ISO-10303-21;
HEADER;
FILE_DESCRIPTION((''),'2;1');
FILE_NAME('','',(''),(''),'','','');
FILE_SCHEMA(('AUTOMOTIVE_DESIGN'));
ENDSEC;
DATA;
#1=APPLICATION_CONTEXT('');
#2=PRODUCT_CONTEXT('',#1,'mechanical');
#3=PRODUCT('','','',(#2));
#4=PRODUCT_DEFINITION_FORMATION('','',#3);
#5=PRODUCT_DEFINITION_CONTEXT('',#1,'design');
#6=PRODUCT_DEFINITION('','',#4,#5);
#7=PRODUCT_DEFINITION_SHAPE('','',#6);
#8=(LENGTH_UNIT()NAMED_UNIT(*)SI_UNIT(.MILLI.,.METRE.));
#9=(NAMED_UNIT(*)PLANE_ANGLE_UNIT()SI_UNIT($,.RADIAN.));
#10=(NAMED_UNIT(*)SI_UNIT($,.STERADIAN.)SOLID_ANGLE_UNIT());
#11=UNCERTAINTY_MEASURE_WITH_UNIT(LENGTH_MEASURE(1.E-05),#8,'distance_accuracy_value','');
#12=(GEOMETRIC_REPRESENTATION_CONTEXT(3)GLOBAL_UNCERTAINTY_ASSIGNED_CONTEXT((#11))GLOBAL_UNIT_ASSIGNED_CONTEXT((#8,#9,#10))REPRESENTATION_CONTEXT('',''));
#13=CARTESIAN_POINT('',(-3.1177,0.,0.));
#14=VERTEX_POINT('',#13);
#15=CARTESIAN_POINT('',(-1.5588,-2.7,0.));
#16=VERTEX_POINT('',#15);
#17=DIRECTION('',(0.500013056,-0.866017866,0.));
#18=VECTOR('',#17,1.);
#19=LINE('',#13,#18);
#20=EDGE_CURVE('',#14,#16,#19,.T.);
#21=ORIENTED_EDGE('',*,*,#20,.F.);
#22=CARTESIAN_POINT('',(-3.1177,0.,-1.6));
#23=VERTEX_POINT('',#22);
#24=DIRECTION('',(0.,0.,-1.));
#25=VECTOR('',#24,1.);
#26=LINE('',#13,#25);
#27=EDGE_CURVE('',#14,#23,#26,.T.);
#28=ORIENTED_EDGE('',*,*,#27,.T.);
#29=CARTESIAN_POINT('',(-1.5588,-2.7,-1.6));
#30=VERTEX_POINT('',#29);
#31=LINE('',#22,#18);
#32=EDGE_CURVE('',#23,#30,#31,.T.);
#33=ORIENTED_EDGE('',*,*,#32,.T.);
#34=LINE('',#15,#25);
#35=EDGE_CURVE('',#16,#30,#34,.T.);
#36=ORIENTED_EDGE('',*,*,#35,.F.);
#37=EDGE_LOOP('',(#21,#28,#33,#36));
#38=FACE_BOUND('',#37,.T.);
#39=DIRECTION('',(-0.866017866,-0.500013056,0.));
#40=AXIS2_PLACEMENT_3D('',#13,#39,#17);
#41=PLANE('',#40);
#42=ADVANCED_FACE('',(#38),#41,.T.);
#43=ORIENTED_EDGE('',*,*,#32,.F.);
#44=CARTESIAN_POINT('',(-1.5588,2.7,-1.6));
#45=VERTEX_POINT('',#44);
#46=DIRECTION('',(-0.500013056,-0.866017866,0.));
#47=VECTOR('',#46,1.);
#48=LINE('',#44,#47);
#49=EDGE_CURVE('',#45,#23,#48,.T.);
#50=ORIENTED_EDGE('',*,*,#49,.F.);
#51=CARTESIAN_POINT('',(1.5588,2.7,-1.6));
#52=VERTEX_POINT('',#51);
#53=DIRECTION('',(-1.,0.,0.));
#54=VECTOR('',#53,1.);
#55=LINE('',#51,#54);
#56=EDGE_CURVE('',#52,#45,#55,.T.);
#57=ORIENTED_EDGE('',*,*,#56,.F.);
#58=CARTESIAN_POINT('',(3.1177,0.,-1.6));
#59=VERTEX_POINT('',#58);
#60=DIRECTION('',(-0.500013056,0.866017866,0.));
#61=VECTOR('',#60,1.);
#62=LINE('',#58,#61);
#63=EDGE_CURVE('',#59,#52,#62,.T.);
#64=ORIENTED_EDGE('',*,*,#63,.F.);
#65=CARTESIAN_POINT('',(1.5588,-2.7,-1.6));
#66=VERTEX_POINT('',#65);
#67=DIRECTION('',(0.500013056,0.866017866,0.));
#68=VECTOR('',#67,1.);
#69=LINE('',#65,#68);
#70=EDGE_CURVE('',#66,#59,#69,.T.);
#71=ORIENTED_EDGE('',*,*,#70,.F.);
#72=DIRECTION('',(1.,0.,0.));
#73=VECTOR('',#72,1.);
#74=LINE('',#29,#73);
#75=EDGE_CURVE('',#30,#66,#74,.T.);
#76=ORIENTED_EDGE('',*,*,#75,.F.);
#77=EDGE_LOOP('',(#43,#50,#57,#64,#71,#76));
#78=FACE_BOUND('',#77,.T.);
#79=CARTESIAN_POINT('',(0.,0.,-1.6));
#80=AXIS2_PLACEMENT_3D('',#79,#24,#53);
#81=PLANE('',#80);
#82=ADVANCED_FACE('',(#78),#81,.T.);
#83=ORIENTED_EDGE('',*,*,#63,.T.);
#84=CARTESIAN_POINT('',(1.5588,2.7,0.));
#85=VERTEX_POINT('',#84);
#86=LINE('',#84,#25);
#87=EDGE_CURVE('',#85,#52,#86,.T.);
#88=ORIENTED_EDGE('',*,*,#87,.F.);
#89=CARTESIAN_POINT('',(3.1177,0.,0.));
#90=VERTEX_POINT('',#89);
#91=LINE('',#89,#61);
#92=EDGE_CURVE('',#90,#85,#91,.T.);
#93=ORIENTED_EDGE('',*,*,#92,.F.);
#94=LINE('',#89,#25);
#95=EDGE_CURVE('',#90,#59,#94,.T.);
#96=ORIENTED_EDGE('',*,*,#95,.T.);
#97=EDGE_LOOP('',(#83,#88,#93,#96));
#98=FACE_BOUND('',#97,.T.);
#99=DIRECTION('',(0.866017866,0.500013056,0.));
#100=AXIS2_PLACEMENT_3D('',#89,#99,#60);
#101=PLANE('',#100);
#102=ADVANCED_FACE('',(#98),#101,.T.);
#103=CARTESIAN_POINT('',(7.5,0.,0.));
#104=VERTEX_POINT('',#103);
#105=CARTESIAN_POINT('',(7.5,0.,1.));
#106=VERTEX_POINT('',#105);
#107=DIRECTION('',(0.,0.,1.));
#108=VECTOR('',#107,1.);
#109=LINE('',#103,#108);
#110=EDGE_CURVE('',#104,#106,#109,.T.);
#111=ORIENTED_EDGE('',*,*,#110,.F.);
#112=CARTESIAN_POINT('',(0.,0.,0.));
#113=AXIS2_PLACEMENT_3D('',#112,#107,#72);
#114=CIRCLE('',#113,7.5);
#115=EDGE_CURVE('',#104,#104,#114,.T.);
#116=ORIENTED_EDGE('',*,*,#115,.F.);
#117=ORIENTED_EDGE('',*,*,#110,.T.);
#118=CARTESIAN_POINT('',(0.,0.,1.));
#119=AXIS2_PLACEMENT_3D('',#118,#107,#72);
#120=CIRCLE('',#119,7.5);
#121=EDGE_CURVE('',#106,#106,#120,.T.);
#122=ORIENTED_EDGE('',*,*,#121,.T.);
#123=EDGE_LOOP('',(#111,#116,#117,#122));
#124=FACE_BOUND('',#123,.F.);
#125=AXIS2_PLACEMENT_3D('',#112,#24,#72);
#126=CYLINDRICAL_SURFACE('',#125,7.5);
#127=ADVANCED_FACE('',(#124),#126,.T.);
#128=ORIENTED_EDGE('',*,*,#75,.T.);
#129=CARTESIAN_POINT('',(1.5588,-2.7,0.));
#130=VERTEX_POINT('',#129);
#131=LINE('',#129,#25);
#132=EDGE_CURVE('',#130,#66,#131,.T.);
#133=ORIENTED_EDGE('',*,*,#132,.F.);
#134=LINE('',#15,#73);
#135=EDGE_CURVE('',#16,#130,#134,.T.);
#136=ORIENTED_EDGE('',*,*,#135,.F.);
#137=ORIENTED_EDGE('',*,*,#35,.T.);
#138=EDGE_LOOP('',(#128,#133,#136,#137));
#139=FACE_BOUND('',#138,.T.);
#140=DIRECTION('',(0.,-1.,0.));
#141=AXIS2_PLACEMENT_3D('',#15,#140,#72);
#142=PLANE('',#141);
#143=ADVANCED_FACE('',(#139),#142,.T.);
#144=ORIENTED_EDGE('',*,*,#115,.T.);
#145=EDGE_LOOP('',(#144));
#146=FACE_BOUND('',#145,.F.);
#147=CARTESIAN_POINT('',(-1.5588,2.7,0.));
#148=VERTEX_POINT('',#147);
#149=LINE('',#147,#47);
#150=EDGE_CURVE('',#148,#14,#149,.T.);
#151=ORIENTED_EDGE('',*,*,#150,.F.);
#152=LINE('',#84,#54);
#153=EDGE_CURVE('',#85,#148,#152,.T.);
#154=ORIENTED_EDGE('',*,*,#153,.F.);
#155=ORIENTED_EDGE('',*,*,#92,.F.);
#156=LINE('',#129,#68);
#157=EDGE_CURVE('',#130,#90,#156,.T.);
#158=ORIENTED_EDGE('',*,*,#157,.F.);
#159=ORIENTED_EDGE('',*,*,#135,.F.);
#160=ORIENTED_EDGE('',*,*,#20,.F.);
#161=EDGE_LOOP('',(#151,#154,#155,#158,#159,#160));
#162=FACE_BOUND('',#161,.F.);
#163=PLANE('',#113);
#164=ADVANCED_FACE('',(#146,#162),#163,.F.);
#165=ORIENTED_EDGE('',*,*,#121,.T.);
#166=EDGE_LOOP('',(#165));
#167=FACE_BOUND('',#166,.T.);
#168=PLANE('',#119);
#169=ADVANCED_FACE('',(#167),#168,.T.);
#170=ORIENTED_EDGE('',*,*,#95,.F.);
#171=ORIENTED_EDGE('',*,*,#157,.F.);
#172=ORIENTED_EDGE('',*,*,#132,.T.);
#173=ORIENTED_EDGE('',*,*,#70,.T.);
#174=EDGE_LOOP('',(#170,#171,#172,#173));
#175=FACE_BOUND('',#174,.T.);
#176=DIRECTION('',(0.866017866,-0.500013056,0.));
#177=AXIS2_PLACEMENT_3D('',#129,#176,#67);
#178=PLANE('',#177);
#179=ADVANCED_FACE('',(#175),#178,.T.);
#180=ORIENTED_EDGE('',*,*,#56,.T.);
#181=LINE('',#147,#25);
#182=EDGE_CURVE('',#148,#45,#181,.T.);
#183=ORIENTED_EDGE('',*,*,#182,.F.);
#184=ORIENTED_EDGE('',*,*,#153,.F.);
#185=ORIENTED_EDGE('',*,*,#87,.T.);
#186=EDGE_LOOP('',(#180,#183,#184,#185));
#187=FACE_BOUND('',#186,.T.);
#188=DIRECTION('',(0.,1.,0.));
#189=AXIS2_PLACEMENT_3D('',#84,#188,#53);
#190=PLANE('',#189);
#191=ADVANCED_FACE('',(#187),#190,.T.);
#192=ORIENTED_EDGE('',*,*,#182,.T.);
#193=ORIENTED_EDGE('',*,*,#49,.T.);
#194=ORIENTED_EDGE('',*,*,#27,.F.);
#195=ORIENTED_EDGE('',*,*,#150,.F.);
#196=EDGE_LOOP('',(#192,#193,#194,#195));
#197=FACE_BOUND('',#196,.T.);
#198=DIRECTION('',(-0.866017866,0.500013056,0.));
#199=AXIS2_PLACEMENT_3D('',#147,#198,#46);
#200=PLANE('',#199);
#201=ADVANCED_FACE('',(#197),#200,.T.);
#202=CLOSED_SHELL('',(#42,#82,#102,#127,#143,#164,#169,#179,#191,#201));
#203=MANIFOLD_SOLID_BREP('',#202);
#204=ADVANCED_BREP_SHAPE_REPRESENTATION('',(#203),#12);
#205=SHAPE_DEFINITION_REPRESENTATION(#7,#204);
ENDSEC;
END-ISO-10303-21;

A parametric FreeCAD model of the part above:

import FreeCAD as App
import Part
import Sketcher

V = App.Vector
Q = App.Units.Quantity


def add_polygon(sketch, points):
    """Adds a closed chain of lines whose ends are joined by coincident constraints."""
    first, n = sketch.GeometryCount, len(points)
    for a, b in zip(points, points[1:] + points[:1]):
        sketch.addGeometry(Part.LineSegment(App.Vector(*a, 0), App.Vector(*b, 0)), False)
    for i in range(n):
        sketch.addConstraint(Sketcher.Constraint("Coincident", first + i, 2, first + (i + 1) % n, 1))

doc = App.newDocument("Part")
params = doc.addObject("Spreadsheet::Sheet", "Params")
for row, (alias, value) in enumerate([
    ("sketch1_diameter", "15 mm"),
    ("pad1_length", "1 mm"),
    ("pad2_length", "1.6 mm"),
], start=1):
    params.set(f"A{row}", alias)
    params.set(f"B{row}", "=" + value)
    params.setAlias(f"B{row}", alias)

body = doc.addObject("PartDesign::Body", "Body")

# Sketch on XY plane
sketch1 = doc.addObject("Sketcher::SketchObject", "Sketch")
body.addObject(sketch1)
sketch1.AttachmentSupport = (doc.XY_Plane, [""])
sketch1.MapMode = "FlatFace"
sketch1.addGeometry(Part.Circle(V(0, 0, 0), V(0, 0, 1), 8), False)
sketch1.addConstraint([
    Sketcher.Constraint("Coincident", 0, 3, -1, 1),
    Sketcher.Constraint("Diameter", 0, Q("15 mm")),
])
sketch1.setExpression("Constraints[1]", "Params.sketch1_diameter")
pad1 = doc.addObject("PartDesign::Pad", "Pad")
body.addObject(pad1)
pad1.Profile = sketch1
pad1.setExpression("Length", "Params.pad1_length")

# Sketch on XY plane
sketch2 = doc.addObject("Sketcher::SketchObject", "Sketch001")
body.addObject(sketch2)
sketch2.AttachmentSupport = (doc.XY_Plane, [""])
sketch2.MapMode = "FlatFace"
add_polygon(sketch2, [(3.1, 0), (1.6, -2.7), (-1.6, -2.7), (-3.1, 0), (-1.6, 2.7), (1.6, 2.7)])  # lines 0-5
sketch2.addConstraint([
    Sketcher.Constraint("Horizontal", 1),
    Sketcher.Constraint("Horizontal", 4),
    Sketcher.Constraint("Symmetric", 0, 2, 3, 2, -1, 1),
    Sketcher.Constraint("Symmetric", 2, 2, 5, 2, -1, 1),
    Sketcher.Constraint("PointOnObject", 2, 2, -1),
    Sketcher.Constraint("Parallel", 2, 5),
    Sketcher.Constraint("Vertical", 1, 2, 3, 2),
    Sketcher.Constraint("Angle", 0, Q("-120.0009 deg")),
    Sketcher.Constraint("DistanceY", 0, 2, -1, 1, Q("2.7 mm")),
    Sketcher.Constraint("DistanceX", 1, 2, 1, 1, Q("3.1176 mm")),
])
pad2 = doc.addObject("PartDesign::Pad", "Pad001")
body.addObject(pad2)
pad2.Profile = sketch2
pad2.setExpression("Length", "Params.pad2_length")
pad2.Reversed = True

doc.recompute()
